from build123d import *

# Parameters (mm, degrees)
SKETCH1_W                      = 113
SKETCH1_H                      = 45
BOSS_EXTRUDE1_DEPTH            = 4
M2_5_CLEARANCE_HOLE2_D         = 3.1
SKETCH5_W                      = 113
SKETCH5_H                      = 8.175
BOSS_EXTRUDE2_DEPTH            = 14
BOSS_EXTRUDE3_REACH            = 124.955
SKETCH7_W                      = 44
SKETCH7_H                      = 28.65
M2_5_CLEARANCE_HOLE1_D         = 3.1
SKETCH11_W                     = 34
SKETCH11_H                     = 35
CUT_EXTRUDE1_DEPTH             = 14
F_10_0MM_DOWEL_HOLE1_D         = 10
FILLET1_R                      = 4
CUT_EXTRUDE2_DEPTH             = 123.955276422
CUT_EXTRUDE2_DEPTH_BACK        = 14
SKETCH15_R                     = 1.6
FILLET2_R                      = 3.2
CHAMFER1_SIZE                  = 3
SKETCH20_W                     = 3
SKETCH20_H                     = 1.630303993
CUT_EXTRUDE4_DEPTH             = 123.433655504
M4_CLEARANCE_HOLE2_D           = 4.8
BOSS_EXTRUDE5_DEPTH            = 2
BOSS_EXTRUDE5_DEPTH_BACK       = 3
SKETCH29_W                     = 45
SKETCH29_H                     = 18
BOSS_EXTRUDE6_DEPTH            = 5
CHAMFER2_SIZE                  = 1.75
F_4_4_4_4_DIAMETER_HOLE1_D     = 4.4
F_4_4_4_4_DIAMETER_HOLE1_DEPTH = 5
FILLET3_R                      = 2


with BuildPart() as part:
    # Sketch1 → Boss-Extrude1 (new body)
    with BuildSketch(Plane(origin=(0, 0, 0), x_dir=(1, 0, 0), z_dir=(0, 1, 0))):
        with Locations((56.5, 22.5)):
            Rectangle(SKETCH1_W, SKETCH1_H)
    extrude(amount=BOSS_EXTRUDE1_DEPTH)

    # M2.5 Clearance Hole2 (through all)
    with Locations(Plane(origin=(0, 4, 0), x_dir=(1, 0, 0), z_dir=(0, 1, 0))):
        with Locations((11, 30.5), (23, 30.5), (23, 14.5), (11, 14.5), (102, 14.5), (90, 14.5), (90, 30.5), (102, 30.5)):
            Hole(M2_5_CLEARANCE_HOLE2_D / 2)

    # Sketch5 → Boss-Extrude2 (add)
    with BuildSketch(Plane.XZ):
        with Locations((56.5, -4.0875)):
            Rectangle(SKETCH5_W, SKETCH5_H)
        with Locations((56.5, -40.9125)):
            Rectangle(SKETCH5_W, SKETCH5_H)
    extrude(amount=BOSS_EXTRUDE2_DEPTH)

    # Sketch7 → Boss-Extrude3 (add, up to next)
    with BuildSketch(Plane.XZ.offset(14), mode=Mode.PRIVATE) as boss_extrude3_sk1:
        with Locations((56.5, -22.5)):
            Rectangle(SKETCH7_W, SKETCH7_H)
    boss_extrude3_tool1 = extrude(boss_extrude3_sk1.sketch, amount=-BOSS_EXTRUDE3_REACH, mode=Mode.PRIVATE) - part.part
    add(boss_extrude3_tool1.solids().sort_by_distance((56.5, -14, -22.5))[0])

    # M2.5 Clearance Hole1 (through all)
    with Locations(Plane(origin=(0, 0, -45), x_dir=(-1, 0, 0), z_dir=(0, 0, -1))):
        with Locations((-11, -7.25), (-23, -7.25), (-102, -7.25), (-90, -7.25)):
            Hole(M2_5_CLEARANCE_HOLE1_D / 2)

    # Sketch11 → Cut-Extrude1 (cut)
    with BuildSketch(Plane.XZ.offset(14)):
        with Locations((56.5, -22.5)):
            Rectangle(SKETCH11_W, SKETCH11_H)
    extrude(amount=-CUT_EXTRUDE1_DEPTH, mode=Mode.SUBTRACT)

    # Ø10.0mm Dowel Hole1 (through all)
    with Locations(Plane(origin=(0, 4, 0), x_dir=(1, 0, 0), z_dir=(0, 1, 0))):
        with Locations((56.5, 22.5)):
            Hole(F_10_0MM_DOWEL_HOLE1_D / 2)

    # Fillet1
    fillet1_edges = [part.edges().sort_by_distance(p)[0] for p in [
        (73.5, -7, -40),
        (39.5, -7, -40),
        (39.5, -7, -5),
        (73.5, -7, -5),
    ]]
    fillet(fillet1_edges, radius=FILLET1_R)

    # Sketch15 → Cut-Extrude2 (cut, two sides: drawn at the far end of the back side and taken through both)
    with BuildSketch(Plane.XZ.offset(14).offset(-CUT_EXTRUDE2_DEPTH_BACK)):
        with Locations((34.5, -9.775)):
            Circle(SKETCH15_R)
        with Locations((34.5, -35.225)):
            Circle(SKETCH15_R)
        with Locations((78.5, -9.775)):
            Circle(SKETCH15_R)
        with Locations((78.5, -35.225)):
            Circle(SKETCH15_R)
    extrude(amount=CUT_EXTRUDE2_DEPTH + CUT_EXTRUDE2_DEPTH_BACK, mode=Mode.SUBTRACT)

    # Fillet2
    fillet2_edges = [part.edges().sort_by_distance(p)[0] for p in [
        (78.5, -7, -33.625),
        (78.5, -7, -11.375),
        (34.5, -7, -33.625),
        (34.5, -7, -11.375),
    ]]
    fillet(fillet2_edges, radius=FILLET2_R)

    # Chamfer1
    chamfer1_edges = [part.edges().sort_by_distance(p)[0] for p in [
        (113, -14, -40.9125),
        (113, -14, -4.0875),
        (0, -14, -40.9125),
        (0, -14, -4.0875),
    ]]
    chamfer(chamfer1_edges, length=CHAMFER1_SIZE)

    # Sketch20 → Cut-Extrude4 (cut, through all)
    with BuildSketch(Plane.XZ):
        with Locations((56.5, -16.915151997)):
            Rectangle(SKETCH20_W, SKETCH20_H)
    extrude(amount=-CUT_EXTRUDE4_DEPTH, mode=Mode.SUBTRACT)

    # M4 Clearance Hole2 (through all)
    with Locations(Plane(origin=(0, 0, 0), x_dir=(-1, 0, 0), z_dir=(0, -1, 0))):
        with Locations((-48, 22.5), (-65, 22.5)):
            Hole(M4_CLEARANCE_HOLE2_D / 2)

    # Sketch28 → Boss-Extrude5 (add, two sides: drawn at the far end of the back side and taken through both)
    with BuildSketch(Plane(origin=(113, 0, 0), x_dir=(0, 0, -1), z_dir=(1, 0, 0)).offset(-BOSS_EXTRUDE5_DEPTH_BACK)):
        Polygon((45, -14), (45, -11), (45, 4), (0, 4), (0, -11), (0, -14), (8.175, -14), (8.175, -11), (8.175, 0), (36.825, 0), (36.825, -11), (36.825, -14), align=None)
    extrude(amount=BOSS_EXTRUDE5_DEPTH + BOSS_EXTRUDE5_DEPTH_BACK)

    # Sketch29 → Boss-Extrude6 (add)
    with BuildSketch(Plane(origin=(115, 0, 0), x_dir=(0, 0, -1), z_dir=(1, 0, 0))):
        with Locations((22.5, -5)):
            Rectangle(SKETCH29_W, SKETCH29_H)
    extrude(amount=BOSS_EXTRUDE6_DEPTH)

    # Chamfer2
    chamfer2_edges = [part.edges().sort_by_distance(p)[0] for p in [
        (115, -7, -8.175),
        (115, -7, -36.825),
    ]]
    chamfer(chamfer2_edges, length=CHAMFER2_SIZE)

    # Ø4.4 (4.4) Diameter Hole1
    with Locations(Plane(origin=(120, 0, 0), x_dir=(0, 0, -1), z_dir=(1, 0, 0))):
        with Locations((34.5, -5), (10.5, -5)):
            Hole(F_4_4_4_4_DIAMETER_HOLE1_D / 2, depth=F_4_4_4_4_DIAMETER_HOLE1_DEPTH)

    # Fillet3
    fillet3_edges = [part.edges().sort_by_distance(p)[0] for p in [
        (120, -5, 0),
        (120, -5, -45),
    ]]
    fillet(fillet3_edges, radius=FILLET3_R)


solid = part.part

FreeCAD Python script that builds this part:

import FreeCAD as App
import Part
import Sketcher
from FreeCAD import Vector


def edges_at(feature, points):
    """Names of the edges that pass closest to the given points."""
    edges = feature.Shape.Edges
    near = lambda p: min(range(len(edges)), key=lambda i: edges[i].distToShape(Part.Vertex(*p))[0])
    return sorted({f"Edge{near(p) + 1}" for p in points})


def add_polygon(sketch, points):
    """Adds a closed chain of lines whose ends are joined by coincident constraints."""
    first, n = sketch.GeometryCount, len(points)
    for a, b in zip(points, points[1:] + points[:1]):
        sketch.addGeometry(Part.LineSegment(App.Vector(*a, 0), App.Vector(*b, 0)), False)
    for i in range(n):
        sketch.addConstraint(Sketcher.Constraint("Coincident", first + i, 2, first + (i + 1) % n, 1))

doc = App.newDocument("Part")
body = doc.addObject("PartDesign::Body", "Body")

# Sketch on XZ plane
sketch1 = body.newObject("Sketcher::SketchObject", "Sketch")
sketch1.AttachmentSupport = (doc.getObject("XZ_Plane"), [""])
sketch1.MapMode = "FlatFace"
add_polygon(sketch1, [(0, -45), (0, 0), (113, 0), (113, -45)])  # lines 0-3
sketch1.addConstraint([
    Sketcher.Constraint("Vertical", 0),
    Sketcher.Constraint("Horizontal", 1),
    Sketcher.Constraint("Vertical", 2),
    Sketcher.Constraint("Horizontal", 3),
    Sketcher.Constraint("Coincident", 0, 2, -1, 1),
    Sketcher.Constraint("DistanceX", 1, 1, 1, 2, 113.0),
    Sketcher.Constraint("DistanceY", 0, 1, 0, 2, 45.0),
])
pad1 = body.newObject("PartDesign::Pad", "Pad")
pad1.Profile = sketch1
pad1.Length = 4
pad1.Reversed = True

# Sketch on XZ plane
sketch2 = body.newObject("Sketcher::SketchObject", "Sketch001")
sketch2.AttachmentSupport = (doc.getObject("XZ_Plane"), [""])
sketch2.MapMode = "FlatFace"
sketch2.AttachmentOffset = App.Placement(Vector(0, 0, -4), App.Rotation())
sketch2.addGeometry([
    Part.Circle(Vector(11, -30.5, 0), Vector(0, 0, 1), 1.6),  # 0
    Part.Circle(Vector(23, -30.5, 0), Vector(0, 0, 1), 1.6),  # 1
    Part.Circle(Vector(23, -14.5, 0), Vector(0, 0, 1), 1.6),  # 2
    Part.Circle(Vector(11, -14.5, 0), Vector(0, 0, 1), 1.6),  # 3
    Part.Circle(Vector(102, -14.5, 0), Vector(0, 0, 1), 1.6),  # 4
    Part.Circle(Vector(90, -14.5, 0), Vector(0, 0, 1), 1.6),  # 5
    Part.Circle(Vector(90, -30.5, 0), Vector(0, 0, 1), 1.6),  # 6
    Part.Circle(Vector(102, -30.5, 0), Vector(0, 0, 1), 1.6),  # 7
], False)
sketch2.addConstraint([
    Sketcher.Constraint("Equal", 0, 1),
    Sketcher.Constraint("Equal", 1, 2),
    Sketcher.Constraint("Equal", 2, 3),
    Sketcher.Constraint("Equal", 3, 4),
    Sketcher.Constraint("Equal", 4, 5),
    Sketcher.Constraint("Equal", 5, 6),
    Sketcher.Constraint("Equal", 6, 7),
    Sketcher.Constraint("Horizontal", 0, 3, 1, 3),
    Sketcher.Constraint("Horizontal", 2, 3, 3, 3),
    Sketcher.Constraint("Horizontal", 3, 3, 4, 3),
    Sketcher.Constraint("Horizontal", 4, 3, 5, 3),
    Sketcher.Constraint("Horizontal", 1, 3, 6, 3),
    Sketcher.Constraint("Horizontal", 6, 3, 7, 3),
    Sketcher.Constraint("Vertical", 1, 3, 2, 3),
    Sketcher.Constraint("Vertical", 0, 3, 3, 3),
    Sketcher.Constraint("Vertical", 5, 3, 6, 3),
    Sketcher.Constraint("Vertical", 4, 3, 7, 3),
    Sketcher.Constraint("Diameter", 0, 3.1),
    Sketcher.Constraint("DistanceX", -1, 1, 0, 3, 11.0),
    Sketcher.Constraint("DistanceX", -1, 1, 1, 3, 23.0),
    Sketcher.Constraint("DistanceX", -1, 1, 4, 3, 102.0),
    Sketcher.Constraint("DistanceX", -1, 1, 5, 3, 90.0),
    Sketcher.Constraint("DistanceY", 1, 3, 2, 3, 16.0),
    Sketcher.Constraint("DistanceY", 0, 3, -1, 1, 30.5),
])
doc.recompute()
hole = body.newObject("PartDesign::Hole", "Hole")
hole.Profile = sketch2
hole.ThreadType = "None"
hole.Diameter = 3.1
hole.DepthType = "ThroughAll"
hole.Reversed = True

# Sketch on XZ plane
sketch3 = body.newObject("Sketcher::SketchObject", "Sketch002")
sketch3.AttachmentSupport = (doc.getObject("XZ_Plane"), [""])
sketch3.MapMode = "FlatFace"
add_polygon(sketch3, [(0, 0), (0, -8), (113, -8), (113, 0)])  # lines 0-3
add_polygon(sketch3, [(0, -37), (0, -45), (113, -45), (113, -37)])  # lines 4-7
sketch3.addConstraint([
    Sketcher.Constraint("Vertical", 0),
    Sketcher.Constraint("Horizontal", 1),
    Sketcher.Constraint("Vertical", 2),
    Sketcher.Constraint("Horizontal", 3),
    Sketcher.Constraint("Vertical", 4),
    Sketcher.Constraint("Horizontal", 5),
    Sketcher.Constraint("Vertical", 6),
    Sketcher.Constraint("Horizontal", 7),
    Sketcher.Constraint("Coincident", 3, 2, -1, 1),
    Sketcher.Constraint("PointOnObject", 4, 2, -2),
    Sketcher.Constraint("Vertical", 2, 2, 5, 2),
    Sketcher.Constraint("Equal", 2, 4),
    Sketcher.Constraint("DistanceX", 1, 1, 1, 2, 113.0),
    Sketcher.Constraint("DistanceY", 4, 2, -1, 1, 45.0),
    Sketcher.Constraint("DistanceY", 0, 2, 0, 1, 8.175),
])
pad2 = body.newObject("PartDesign::Pad", "Pad001")
pad2.Profile = sketch3
pad2.Length = 14

# Sketch on XZ plane
sketch4 = body.newObject("Sketcher::SketchObject", "Sketch003")
sketch4.AttachmentSupport = (doc.getObject("XZ_Plane"), [""])
sketch4.MapMode = "FlatFace"
sketch4.AttachmentOffset = App.Placement(Vector(0, 0, 14), App.Rotation())
add_polygon(sketch4, [(34, -8), (34, -37), (78, -37), (78, -8)])  # lines 0-3
sketch4.addConstraint([
    Sketcher.Constraint("Vertical", 0),
    Sketcher.Constraint("Horizontal", 1),
    Sketcher.Constraint("Vertical", 2),
    Sketcher.Constraint("Horizontal", 3),
    Sketcher.Constraint("DistanceX", 1, 1, 1, 2, 44.0),
    Sketcher.Constraint("DistanceY", 0, 2, 0, 1, 28.65),
    Sketcher.Constraint("DistanceX", -1, 1, 0, 2, 34.5),
    Sketcher.Constraint("DistanceY", 0, 2, -1, 1, 36.825),
])
pad3 = body.newObject("PartDesign::Pad", "Pad002")
pad3.Profile = sketch4
pad3.Type = "UpToFirst"
pad3.Reversed = True

# Sketch on XY plane
sketch5 = body.newObject("Sketcher::SketchObject", "Sketch004")
sketch5.AttachmentSupport = (doc.getObject("XY_Plane"), [""])
sketch5.MapMode = "FlatFace"
sketch5.AttachmentOffset = App.Placement(Vector(0, 0, -45), App.Rotation())
sketch5.addGeometry([
    Part.Circle(Vector(11, -7.2, 0), Vector(0, 0, 1), 1.6),
    Part.Circle(Vector(23, -7.2, 0), Vector(0, 0, 1), 1.6),
    Part.Circle(Vector(102, -7.2, 0), Vector(0, 0, 1), 1.6),
    Part.Circle(Vector(90, -7.2, 0), Vector(0, 0, 1), 1.6),
], False)
sketch5.addConstraint([
    Sketcher.Constraint("Equal", 0, 1),
    Sketcher.Constraint("Equal", 1, 2),
    Sketcher.Constraint("Equal", 2, 3),
    Sketcher.Constraint("Horizontal", 0, 3, 1, 3),
    Sketcher.Constraint("Horizontal", 1, 3, 2, 3),
    Sketcher.Constraint("Horizontal", 2, 3, 3, 3),
    Sketcher.Constraint("Diameter", 0, 3.1),
    Sketcher.Constraint("DistanceX", -1, 1, 0, 3, 11.0),
    Sketcher.Constraint("DistanceX", -1, 1, 1, 3, 23.0),
    Sketcher.Constraint("DistanceX", -1, 1, 2, 3, 102.0),
    Sketcher.Constraint("DistanceX", -1, 1, 3, 3, 90.0),
    Sketcher.Constraint("DistanceY", 0, 3, -1, 1, 7.25),
])
doc.recompute()
hole2 = body.newObject("PartDesign::Hole", "Hole001")
hole2.Profile = sketch5
hole2.ThreadType = "None"
hole2.Diameter = 3.1
hole2.DepthType = "ThroughAll"
hole2.Reversed = True

# Sketch on XZ plane
sketch6 = body.newObject("Sketcher::SketchObject", "Sketch005")
sketch6.AttachmentSupport = (doc.getObject("XZ_Plane"), [""])
sketch6.MapMode = "FlatFace"
sketch6.AttachmentOffset = App.Placement(Vector(0, 0, 14), App.Rotation())
add_polygon(sketch6, [(40, -5), (40, -40), (74, -40), (74, -5)])  # lines 0-3
sketch6.addConstraint([
    Sketcher.Constraint("Vertical", 0),
    Sketcher.Constraint("Horizontal", 1),
    Sketcher.Constraint("Vertical", 2),
    Sketcher.Constraint("Horizontal", 3),
    Sketcher.Constraint("DistanceX", 1, 1, 1, 2, 34.0),
    Sketcher.Constraint("DistanceY", 0, 2, 0, 1, 35.0),
    Sketcher.Constraint("DistanceY", 0, 2, -1, 1, 40.0),
    Sketcher.Constraint("DistanceX", -1, 1, 0, 2, 39.5),
])
pocket1 = body.newObject("PartDesign::Pocket", "Pocket")
pocket1.Profile = sketch6
pocket1.Length = 14

# Sketch on XZ plane
sketch7 = body.newObject("Sketcher::SketchObject", "Sketch006")
sketch7.AttachmentSupport = (doc.getObject("XZ_Plane"), [""])
sketch7.MapMode = "FlatFace"
sketch7.AttachmentOffset = App.Placement(Vector(0, 0, -4), App.Rotation())
sketch7.addGeometry(Part.Circle(Vector(56, -22, 0), Vector(0, 0, 1), 5), False)
sketch7.addConstraint([
    Sketcher.Constraint("Diameter", 0, 10.0),
    Sketcher.Constraint("DistanceX", -1, 1, 0, 3, 56.5),
    Sketcher.Constraint("DistanceY", 0, 3, -1, 1, 22.5),
])
doc.recompute()
hole3 = body.newObject("PartDesign::Hole", "Hole002")
hole3.Profile = sketch7
hole3.ThreadType = "None"
hole3.Diameter = 10
hole3.DepthType = "ThroughAll"
hole3.Reversed = True
doc.recompute()

fillet = body.newObject("PartDesign::Fillet", "Fillet")
fillet.Base = (hole3, edges_at(hole3, [
    (73.5, -7, -40),
    (39.5, -7, -40),
    (39.5, -7, -5),
    (73.5, -7, -5),
]))
fillet.Radius = 4

# Sketch on XZ plane
sketch8 = body.newObject("Sketcher::SketchObject", "Sketch007")
sketch8.AttachmentSupport = (doc.getObject("XZ_Plane"), [""])
sketch8.MapMode = "FlatFace"
sketch8.AttachmentOffset = App.Placement(Vector(0, 0, 14), App.Rotation())
sketch8.addGeometry([
    Part.Circle(Vector(34.5, -9.8, 0), Vector(0, 0, 1), 1.6),
    Part.Circle(Vector(34.5, -35.2, 0), Vector(0, 0, 1), 1.6),
    Part.Circle(Vector(78.5, -9.8, 0), Vector(0, 0, 1), 1.6),
    Part.Circle(Vector(78.5, -35.2, 0), Vector(0, 0, 1), 1.6),
], False)
sketch8.addConstraint([
    Sketcher.Constraint("Equal", 0, 1),
    Sketcher.Constraint("Equal", 1, 2),
    Sketcher.Constraint("Equal", 2, 3),
    Sketcher.Constraint("Horizontal", 0, 3, 2, 3),
    Sketcher.Constraint("Horizontal", 1, 3, 3, 3),
    Sketcher.Constraint("Vertical", 0, 3, 1, 3),
    Sketcher.Constraint("Vertical", 2, 3, 3, 3),
    Sketcher.Constraint("Diameter", 0, 3.2),
    Sketcher.Constraint("DistanceX", 0, 3, 2, 3, 44.0),
    Sketcher.Constraint("DistanceX", -1, 1, 0, 3, 34.5),
    Sketcher.Constraint("DistanceY", 1, 3, 0, 3, 25.45),
    Sketcher.Constraint("DistanceY", 0, 3, -1, 1, 9.775),
])
pocket2 = body.newObject("PartDesign::Pocket", "Pocket001")
pocket2.Profile = sketch8
pocket2.Type = "TwoLengths"
pocket2.Length = 123.955276
pocket2.Length2 = 14
pocket2.Reversed = True
doc.recompute()

fillet2 = body.newObject("PartDesign::Fillet", "Fillet001")
fillet2.Base = (pocket2, edges_at(pocket2, [
    (78.5, -7, -33.625),
    (78.5, -7, -11.375),
    (34.5, -7, -33.625),
    (34.5, -7, -11.375),
]))
fillet2.Radius = 3.2
doc.recompute()

chamfer = body.newObject("PartDesign::Chamfer", "Chamfer")
chamfer.Base = (fillet2, edges_at(fillet2, [
    (113, -14, -40.913),
    (113, -14, -4.088),
    (0, -14, -40.913),
    (0, -14, -4.088),
]))
chamfer.Size = 3

# Sketch on XZ plane
sketch9 = body.newObject("Sketcher::SketchObject", "Sketch008")
sketch9.AttachmentSupport = (doc.getObject("XZ_Plane"), [""])
sketch9.MapMode = "FlatFace"
add_polygon(sketch9, [(55, -16.1), (55, -17.7), (58, -17.7), (58, -16.1)])  # lines 0-3
sketch9.addConstraint([
    Sketcher.Constraint("Vertical", 0),
    Sketcher.Constraint("Horizontal", 1),
    Sketcher.Constraint("Vertical", 2),
    Sketcher.Constraint("Horizontal", 3),
    Sketcher.Constraint("DistanceX", 1, 1, 1, 2, 3.0),
    Sketcher.Constraint("DistanceX", -1, 1, 0, 2, 55.0),
    Sketcher.Constraint("DistanceY", 2, 2, -1, 1, 16.1),
    Sketcher.Constraint("DistanceY", 0, 2, 0, 1, 1.630304),
])
pocket3 = body.newObject("PartDesign::Pocket", "Pocket002")
pocket3.Profile = sketch9
pocket3.Type = "ThroughAll"

# Sketch on XZ plane
sketch10 = body.newObject("Sketcher::SketchObject", "Sketch009")
sketch10.AttachmentSupport = (doc.getObject("XZ_Plane"), [""])
sketch10.MapMode = "FlatFace"
sketch10.addGeometry([
    Part.Circle(Vector(48, -22.5, 0), Vector(0, 0, 1), 2.4),
    Part.Circle(Vector(65, -22.5, 0), Vector(0, 0, 1), 2.4),
], False)
sketch10.addConstraint([
    Sketcher.Constraint("Equal", 0, 1),
    Sketcher.Constraint("Horizontal", 0, 3, 1, 3),
    Sketcher.Constraint("Diameter", 0, 4.8),
    Sketcher.Constraint("DistanceX", -1, 1, 0, 3, 48.0),
    Sketcher.Constraint("DistanceX", -1, 1, 1, 3, 65.0),
    Sketcher.Constraint("DistanceY", 0, 3, -1, 1, 22.5),
])
doc.recompute()
hole4 = body.newObject("PartDesign::Hole", "Hole003")
hole4.Profile = sketch10
hole4.ThreadType = "None"
hole4.Diameter = 4.8
hole4.DepthType = "ThroughAll"

# Sketch on YZ plane
sketch11 = body.newObject("Sketcher::SketchObject", "Sketch010")
sketch11.AttachmentSupport = (doc.getObject("YZ_Plane"), [""])
sketch11.MapMode = "FlatFace"
sketch11.AttachmentOffset = App.Placement(Vector(0, 0, 113), App.Rotation())
add_polygon(sketch11, [(-14, -45), (4, -45), (4, 0), (-14, 0), (-14, -8), (0, -8), (0, -37), (-14, -37)])  # lines 0-7
sketch11.addConstraint([
    Sketcher.Constraint("Horizontal", 0),
    Sketcher.Constraint("Vertical", 1),
    Sketcher.Constraint("Horizontal", 2),
    Sketcher.Constraint("Vertical", 3),
    Sketcher.Constraint("Horizontal", 4),
    Sketcher.Constraint("Vertical", 5),
    Sketcher.Constraint("Horizontal", 6),
    Sketcher.Constraint("Vertical", 7),
    Sketcher.Constraint("PointOnObject", 1, 2, -1),
    Sketcher.Constraint("PointOnObject", 4, 2, -2),
    Sketcher.Constraint("Vertical", 3, 2, 6, 2),
    Sketcher.Constraint("Equal", 3, 7),
    Sketcher.Constraint("DistanceX", 0, 1, 0, 2, 18.0),
    Sketcher.Constraint("DistanceX", 4, 1, 4, 2, 14.0),
    Sketcher.Constraint("DistanceY", 1, 1, 1, 2, 45.0),
    Sketcher.Constraint("DistanceY", 5, 2, 5, 1, 28.65),
])
pad4 = body.newObject("PartDesign::Pad", "Pad003")
pad4.Profile = sketch11
pad4.Type = "TwoLengths"
pad4.Length = 2
pad4.Length2 = 3

# Sketch on YZ plane
sketch12 = body.newObject("Sketcher::SketchObject", "Sketch011")
sketch12.AttachmentSupport = (doc.getObject("YZ_Plane"), [""])
sketch12.MapMode = "FlatFace"
sketch12.AttachmentOffset = App.Placement(Vector(0, 0, 115), App.Rotation())
add_polygon(sketch12, [(4, 0), (-14, 0), (-14, -45), (4, -45)])  # lines 0-3
sketch12.addConstraint([
    Sketcher.Constraint("Horizontal", 0),
    Sketcher.Constraint("Vertical", 1),
    Sketcher.Constraint("Horizontal", 2),
    Sketcher.Constraint("Vertical", 3),
    Sketcher.Constraint("PointOnObject", 0, 2, -1),
    Sketcher.Constraint("DistanceX", 0, 2, 0, 1, 18.0),
    Sketcher.Constraint("DistanceY", 1, 2, 1, 1, 45.0),
    Sketcher.Constraint("DistanceX", 0, 2, -1, 1, 14.0),
])
pad5 = body.newObject("PartDesign::Pad", "Pad004")
pad5.Profile = sketch12
pad5.Length = 5
doc.recompute()

chamfer2 = body.newObject("PartDesign::Chamfer", "Chamfer001")
chamfer2.Base = (pad5, edges_at(pad5, [(115, -7, -8.175), (115, -7, -36.825)]))
chamfer2.Size = 1.75

# Sketch on YZ plane
sketch13 = body.newObject("Sketcher::SketchObject", "Sketch012")
sketch13.AttachmentSupport = (doc.getObject("YZ_Plane"), [""])
sketch13.MapMode = "FlatFace"
sketch13.AttachmentOffset = App.Placement(Vector(0, 0, 120), App.Rotation())
sketch13.addGeometry([
    Part.Circle(Vector(-5, -34.5, 0), Vector(0, 0, 1), 2.2),
    Part.Circle(Vector(-5, -10.5, 0), Vector(0, 0, 1), 2.2),
], False)
sketch13.addConstraint([
    Sketcher.Constraint("Equal", 0, 1),
    Sketcher.Constraint("Vertical", 0, 3, 1, 3),
    Sketcher.Constraint("Diameter", 0, 4.4),
    Sketcher.Constraint("DistanceX", 0, 3, -1, 1, 5.0),
    Sketcher.Constraint("DistanceY", 0, 3, 1, 3, 24.0),
    Sketcher.Constraint("DistanceY", 0, 3, -1, 1, 34.5),
])
doc.recompute()
hole5 = body.newObject("PartDesign::Hole", "Hole004")
hole5.Profile = sketch13
hole5.ThreadType = "None"
hole5.Diameter = 4.4
hole5.DepthType = "Dimension"
hole5.Depth = 5
hole5.DrillPoint = "Flat"
doc.recompute()

fillet3 = body.newObject("PartDesign::Fillet", "Fillet002")
fillet3.Base = (hole5, edges_at(hole5, [(120, -5, 0), (120, -5, -45)]))
fillet3.Radius = 2

doc.recompute()
